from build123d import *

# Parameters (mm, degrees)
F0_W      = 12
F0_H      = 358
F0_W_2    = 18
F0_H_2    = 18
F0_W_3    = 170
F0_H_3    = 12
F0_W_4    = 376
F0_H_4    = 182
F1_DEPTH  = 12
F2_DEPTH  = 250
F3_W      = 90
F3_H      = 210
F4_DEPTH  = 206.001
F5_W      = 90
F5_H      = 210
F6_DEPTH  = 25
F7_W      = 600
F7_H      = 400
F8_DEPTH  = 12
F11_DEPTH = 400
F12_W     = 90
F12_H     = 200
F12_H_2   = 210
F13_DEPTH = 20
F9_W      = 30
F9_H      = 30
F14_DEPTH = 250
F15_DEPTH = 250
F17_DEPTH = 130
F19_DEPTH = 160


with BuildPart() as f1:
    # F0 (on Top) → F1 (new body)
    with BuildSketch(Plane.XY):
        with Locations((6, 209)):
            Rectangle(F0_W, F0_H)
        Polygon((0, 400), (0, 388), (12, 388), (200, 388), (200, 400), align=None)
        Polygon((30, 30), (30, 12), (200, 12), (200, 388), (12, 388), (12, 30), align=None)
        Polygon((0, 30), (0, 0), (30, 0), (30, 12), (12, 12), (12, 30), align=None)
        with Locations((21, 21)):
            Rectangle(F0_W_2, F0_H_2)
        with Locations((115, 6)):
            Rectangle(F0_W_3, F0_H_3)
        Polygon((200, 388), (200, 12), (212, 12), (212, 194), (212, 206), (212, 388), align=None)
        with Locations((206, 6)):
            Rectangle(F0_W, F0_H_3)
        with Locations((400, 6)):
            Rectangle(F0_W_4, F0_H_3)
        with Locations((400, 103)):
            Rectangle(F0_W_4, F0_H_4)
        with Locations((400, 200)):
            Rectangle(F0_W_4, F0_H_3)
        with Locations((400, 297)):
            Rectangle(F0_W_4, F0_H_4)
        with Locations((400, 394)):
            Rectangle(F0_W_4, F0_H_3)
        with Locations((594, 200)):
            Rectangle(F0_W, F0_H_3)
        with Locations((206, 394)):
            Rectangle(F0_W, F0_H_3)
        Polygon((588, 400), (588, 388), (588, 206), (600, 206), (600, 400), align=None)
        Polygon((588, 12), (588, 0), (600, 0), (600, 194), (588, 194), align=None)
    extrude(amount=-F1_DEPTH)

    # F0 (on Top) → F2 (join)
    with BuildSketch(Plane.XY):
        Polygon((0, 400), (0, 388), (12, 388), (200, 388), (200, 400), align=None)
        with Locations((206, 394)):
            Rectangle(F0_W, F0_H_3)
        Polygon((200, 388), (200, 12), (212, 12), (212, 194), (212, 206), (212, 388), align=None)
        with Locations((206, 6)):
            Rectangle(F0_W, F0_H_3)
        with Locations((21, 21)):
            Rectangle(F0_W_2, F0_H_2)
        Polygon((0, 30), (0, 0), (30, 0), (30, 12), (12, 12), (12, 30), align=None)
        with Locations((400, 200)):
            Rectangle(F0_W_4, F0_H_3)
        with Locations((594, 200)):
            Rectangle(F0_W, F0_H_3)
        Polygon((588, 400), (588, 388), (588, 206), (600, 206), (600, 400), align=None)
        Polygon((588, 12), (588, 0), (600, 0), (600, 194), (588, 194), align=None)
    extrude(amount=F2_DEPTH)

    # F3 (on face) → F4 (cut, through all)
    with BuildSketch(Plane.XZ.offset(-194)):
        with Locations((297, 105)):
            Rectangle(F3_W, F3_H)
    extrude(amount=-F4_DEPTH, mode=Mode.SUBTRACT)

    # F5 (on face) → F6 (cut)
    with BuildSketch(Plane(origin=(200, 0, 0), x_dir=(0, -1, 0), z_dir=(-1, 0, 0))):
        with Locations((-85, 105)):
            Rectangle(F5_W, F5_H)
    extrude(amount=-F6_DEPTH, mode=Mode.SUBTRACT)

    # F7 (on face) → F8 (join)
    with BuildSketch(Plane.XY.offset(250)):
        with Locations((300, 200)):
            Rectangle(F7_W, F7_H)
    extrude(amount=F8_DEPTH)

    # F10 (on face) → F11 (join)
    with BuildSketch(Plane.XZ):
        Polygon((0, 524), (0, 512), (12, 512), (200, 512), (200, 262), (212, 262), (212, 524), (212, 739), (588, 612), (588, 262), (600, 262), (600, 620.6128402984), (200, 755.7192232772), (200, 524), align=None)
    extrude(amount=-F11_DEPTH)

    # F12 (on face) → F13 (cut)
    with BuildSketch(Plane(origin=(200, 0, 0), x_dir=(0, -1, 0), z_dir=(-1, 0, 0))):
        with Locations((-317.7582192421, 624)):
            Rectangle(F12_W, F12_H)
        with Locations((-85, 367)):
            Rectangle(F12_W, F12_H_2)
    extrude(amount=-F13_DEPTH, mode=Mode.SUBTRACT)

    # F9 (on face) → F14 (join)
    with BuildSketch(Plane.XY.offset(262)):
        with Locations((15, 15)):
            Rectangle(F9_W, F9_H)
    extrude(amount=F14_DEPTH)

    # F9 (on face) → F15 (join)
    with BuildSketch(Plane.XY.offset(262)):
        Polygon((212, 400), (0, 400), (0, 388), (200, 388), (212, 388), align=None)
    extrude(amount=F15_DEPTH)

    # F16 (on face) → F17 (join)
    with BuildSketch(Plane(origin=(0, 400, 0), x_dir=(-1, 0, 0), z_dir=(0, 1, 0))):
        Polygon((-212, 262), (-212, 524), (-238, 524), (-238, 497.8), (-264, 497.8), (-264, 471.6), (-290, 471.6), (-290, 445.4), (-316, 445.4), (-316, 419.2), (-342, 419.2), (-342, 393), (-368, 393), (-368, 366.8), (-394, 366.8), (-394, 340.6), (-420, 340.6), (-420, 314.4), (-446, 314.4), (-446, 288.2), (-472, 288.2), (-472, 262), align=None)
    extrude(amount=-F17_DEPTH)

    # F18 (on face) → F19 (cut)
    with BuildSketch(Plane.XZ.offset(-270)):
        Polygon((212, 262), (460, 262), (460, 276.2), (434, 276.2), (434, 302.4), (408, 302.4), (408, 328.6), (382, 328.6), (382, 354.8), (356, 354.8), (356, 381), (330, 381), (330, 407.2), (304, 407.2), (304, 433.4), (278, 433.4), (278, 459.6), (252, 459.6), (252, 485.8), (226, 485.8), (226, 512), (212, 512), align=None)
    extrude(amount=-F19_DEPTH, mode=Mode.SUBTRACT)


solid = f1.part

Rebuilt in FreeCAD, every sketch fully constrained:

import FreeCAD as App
import Part
import Sketcher
from FreeCAD import Vector
Q = App.Units.Quantity


def add_polygon(sketch, points):
    """Adds a closed chain of lines whose ends are joined by coincident constraints."""
    first, n = sketch.GeometryCount, len(points)
    for a, b in zip(points, points[1:] + points[:1]):
        sketch.addGeometry(Part.LineSegment(App.Vector(*a, 0), App.Vector(*b, 0)), False)
    for i in range(n):
        sketch.addConstraint(Sketcher.Constraint("Coincident", first + i, 2, first + (i + 1) % n, 1))

doc = App.newDocument("Part")
params = doc.addObject("Spreadsheet::Sheet", "Params")
for row, (alias, value) in enumerate([
    ("sketch1_width", "600 mm"),
    ("sketch1_height", "400 mm"),
    ("pad1_length", "12 mm"),
    ("sketch2_width", "200 mm"),
    ("sketch2_width2", "12 mm"),
    ("sketch2_width3", "376 mm"),
    ("sketch2_width4", "30 mm"),
    ("sketch2_height", "388 mm"),
    ("pad2_length", "250 mm"),
    ("sketch3_width", "90 mm"),
    ("sketch3_height", "210 mm"),
    ("sketch4_width", "90 mm"),
    ("sketch4_height", "210 mm"),
    ("pocket2_length", "25 mm"),
    ("sketch5_width", "600 mm"),
    ("sketch5_height", "400 mm"),
    ("pad3_length", "12 mm"),
    ("sketch6_width", "200 mm"),
    ("sketch6_width2", "12 mm"),
    ("sketch6_height", "250 mm"),
    ("sketch6_height2", "477 mm"),
    ("sketch6_height3", "350 mm"),
    ("pad4_length", "400 mm"),
    ("sketch7_width", "90 mm"),
    ("sketch7_height", "200 mm"),
    ("sketch7_height2", "210 mm"),
    ("pocket3_length", "20 mm"),
    ("sketch8_width", "30 mm"),
    ("pad5_length", "250 mm"),
    ("sketch9_width", "212 mm"),
    ("sketch9_height", "12 mm"),
    ("pad6_length", "250 mm"),
    ("sketch10_width", "26 mm"),
    ("sketch10_height", "262 mm"),
    ("pad7_length", "130 mm"),
    ("sketch11_width", "248 mm"),
    ("sketch11_width2", "26 mm"),
    ("sketch11_height", "250 mm"),
    ("sketch11_height2", "14.2 mm"),
    ("pocket4_length", "160 mm"),
], start=1):
    params.set(f"A{row}", alias)
    params.set(f"B{row}", "=" + value)
    params.setAlias(f"B{row}", alias)

body = doc.addObject("PartDesign::Body", "Body")

# Sketch on XY plane
sketch1 = body.newObject("Sketcher::SketchObject", "Sketch")
sketch1.AttachmentSupport = (doc.getObject("XY_Plane"), [""])
sketch1.MapMode = "FlatFace"
add_polygon(sketch1, [(0, 400), (0, 0), (600, 0), (600, 400)])  # lines 0-3
sketch1.addConstraint([
    Sketcher.Constraint("Vertical", 0),
    Sketcher.Constraint("Horizontal", 1),
    Sketcher.Constraint("Vertical", 2),
    Sketcher.Constraint("Horizontal", 3),
    Sketcher.Constraint("Coincident", 0, 2, -1, 1),
    Sketcher.Constraint("DistanceX", 1, 1, 1, 2, Q("600 mm")),
    Sketcher.Constraint("DistanceY", 0, 2, 0, 1, Q("400 mm")),
])
sketch1.setExpression("Constraints[9]", "Params.sketch1_width")
sketch1.setExpression("Constraints[10]", "Params.sketch1_height")
pad1 = body.newObject("PartDesign::Pad", "Pad")
pad1.Profile = sketch1
pad1.setExpression("Length", "Params.pad1_length")
pad1.Reversed = True

# Sketch on XY plane
sketch2 = body.newObject("Sketcher::SketchObject", "Sketch001")
sketch2.AttachmentSupport = (doc.getObject("XY_Plane"), [""])
sketch2.MapMode = "FlatFace"
add_polygon(sketch2, [(0, 400), (0, 388), (200, 388), (200, 0), (212, 0), (212, 194), (588, 194), (588, 0), (600, 0), (600, 400), (588, 400), (588, 206), (212, 206), (212, 400)])  # lines 0-13
add_polygon(sketch2, [(30, 30), (0, 30), (0, 0), (30, 0)])  # lines 14-17
sketch2.addConstraint([
    Sketcher.Constraint("Vertical", 0),
    Sketcher.Constraint("Horizontal", 1),
    Sketcher.Constraint("Vertical", 2),
    Sketcher.Constraint("Horizontal", 3),
    Sketcher.Constraint("Vertical", 4),
    Sketcher.Constraint("Horizontal", 5),
    Sketcher.Constraint("Vertical", 6),
    Sketcher.Constraint("Horizontal", 7),
    Sketcher.Constraint("Vertical", 8),
    Sketcher.Constraint("Horizontal", 9),
    Sketcher.Constraint("Vertical", 10),
    Sketcher.Constraint("Horizontal", 11),
    Sketcher.Constraint("Vertical", 12),
    Sketcher.Constraint("Horizontal", 13),
    Sketcher.Constraint("Horizontal", 14),
    Sketcher.Constraint("Vertical", 15),
    Sketcher.Constraint("Horizontal", 16),
    Sketcher.Constraint("Vertical", 17),
    Sketcher.Constraint("Coincident", 15, 2, -1, 1),
    Sketcher.Constraint("PointOnObject", 0, 2, -2),
    Sketcher.Constraint("PointOnObject", 2, 2, -1),
    Sketcher.Constraint("PointOnObject", 6, 2, -1),
    Sketcher.Constraint("Horizontal", 9, 2, 12, 2),
    Sketcher.Constraint("Vertical", 6, 2, 9, 2),
    Sketcher.Constraint("Vertical", 4, 2, 11, 2),
    Sketcher.Constraint("Equal", 3, 7),
    Sketcher.Constraint("Equal", 9, 0),
    Sketcher.Constraint("Equal", 6, 10),
    Sketcher.Constraint("Equal", 16, 15),
    Sketcher.Constraint("DistanceX", 1, 1, 1, 2, Q("200 mm")),
    Sketcher.Constraint("DistanceX", 3, 1, 3, 2, Q("12 mm")),
    Sketcher.Constraint("DistanceX", 5, 1, 5, 2, Q("376 mm")),
    Sketcher.Constraint("DistanceX", 14, 2, 14, 1, Q("30 mm")),
    Sketcher.Constraint("DistanceY", 2, 2, 2, 1, Q("388 mm")),
    Sketcher.Constraint("DistanceY", 4, 1, 4, 2, Q("194 mm")),
])
sketch2.setExpression("Constraints[47]", "Params.sketch2_width")
sketch2.setExpression("Constraints[48]", "Params.sketch2_width2")
sketch2.setExpression("Constraints[49]", "Params.sketch2_width3")
sketch2.setExpression("Constraints[50]", "Params.sketch2_width4")
sketch2.setExpression("Constraints[51]", "Params.sketch2_height")
pad2 = body.newObject("PartDesign::Pad", "Pad001")
pad2.Profile = sketch2
pad2.setExpression("Length", "Params.pad2_length")

# Sketch on XZ plane
sketch3 = body.newObject("Sketcher::SketchObject", "Sketch002")
sketch3.AttachmentSupport = (doc.getObject("XZ_Plane"), [""])
sketch3.MapMode = "FlatFace"
sketch3.AttachmentOffset = App.Placement(Vector(0, 0, -194), App.Rotation())
add_polygon(sketch3, [(252, 210), (252, 0), (342, 0), (342, 210)])  # lines 0-3
sketch3.addConstraint([
    Sketcher.Constraint("Vertical", 0),
    Sketcher.Constraint("Horizontal", 1),
    Sketcher.Constraint("Vertical", 2),
    Sketcher.Constraint("Horizontal", 3),
    Sketcher.Constraint("PointOnObject", 0, 2, -1),
    Sketcher.Constraint("DistanceX", 1, 1, 1, 2, Q("90 mm")),
    Sketcher.Constraint("DistanceY", 0, 2, 0, 1, Q("210 mm")),
    Sketcher.Constraint("DistanceX", -1, 1, 0, 2, Q("252 mm")),
])
sketch3.setExpression("Constraints[9]", "Params.sketch3_width")
sketch3.setExpression("Constraints[10]", "Params.sketch3_height")
pocket1 = body.newObject("PartDesign::Pocket", "Pocket")
pocket1.Profile = sketch3
pocket1.Type = "ThroughAll"

# Sketch on YZ plane
sketch4 = body.newObject("Sketcher::SketchObject", "Sketch003")
sketch4.AttachmentSupport = (doc.getObject("YZ_Plane"), [""])
sketch4.MapMode = "FlatFace"
sketch4.AttachmentOffset = App.Placement(Vector(0, 0, 200), App.Rotation())
add_polygon(sketch4, [(130, 210), (130, 0), (40, 0), (40, 210)])  # lines 0-3
sketch4.addConstraint([
    Sketcher.Constraint("Vertical", 0),
    Sketcher.Constraint("Horizontal", 1),
    Sketcher.Constraint("Vertical", 2),
    Sketcher.Constraint("Horizontal", 3),
    Sketcher.Constraint("PointOnObject", 0, 2, -1),
    Sketcher.Constraint("DistanceX", 1, 2, 1, 1, Q("90 mm")),
    Sketcher.Constraint("DistanceY", 0, 2, 0, 1, Q("210 mm")),
    Sketcher.Constraint("DistanceX", -1, 1, 0, 2, Q("130 mm")),
])
sketch4.setExpression("Constraints[9]", "Params.sketch4_width")
sketch4.setExpression("Constraints[10]", "Params.sketch4_height")
pocket2 = body.newObject("PartDesign::Pocket", "Pocket001")
pocket2.Profile = sketch4
pocket2.setExpression("Length", "Params.pocket2_length")
pocket2.Reversed = True

# Sketch on XY plane
sketch5 = body.newObject("Sketcher::SketchObject", "Sketch004")
sketch5.AttachmentSupport = (doc.getObject("XY_Plane"), [""])
sketch5.MapMode = "FlatFace"
sketch5.AttachmentOffset = App.Placement(Vector(0, 0, 250), App.Rotation())
add_polygon(sketch5, [(0, 400), (0, 0), (600, 0), (600, 400)])  # lines 0-3
sketch5.addConstraint([
    Sketcher.Constraint("Vertical", 0),
    Sketcher.Constraint("Horizontal", 1),
    Sketcher.Constraint("Vertical", 2),
    Sketcher.Constraint("Horizontal", 3),
    Sketcher.Constraint("Coincident", 0, 2, -1, 1),
    Sketcher.Constraint("DistanceX", 1, 1, 1, 2, Q("600 mm")),
    Sketcher.Constraint("DistanceY", 0, 2, 0, 1, Q("400 mm")),
])
sketch5.setExpression("Constraints[9]", "Params.sketch5_width")
sketch5.setExpression("Constraints[10]", "Params.sketch5_height")
pad3 = body.newObject("PartDesign::Pad", "Pad002")
pad3.Profile = sketch5
pad3.setExpression("Length", "Params.pad3_length")

# Sketch on XZ plane
sketch6 = body.newObject("Sketcher::SketchObject", "Sketch005")
sketch6.AttachmentSupport = (doc.getObject("XZ_Plane"), [""])
sketch6.MapMode = "FlatFace"
add_polygon(sketch6, [(0, 524), (0, 512), (200, 512), (200, 262), (212, 262), (212, 739), (588, 612), (588, 262), (600, 262), (600, 621), (200, 756), (200, 524)])  # lines 0-11
sketch6.addConstraint([
    Sketcher.Constraint("Vertical", 0),
    Sketcher.Constraint("Horizontal", 1),
    Sketcher.Constraint("Vertical", 2),
    Sketcher.Constraint("Horizontal", 3),
    Sketcher.Constraint("Vertical", 4),
    Sketcher.Constraint("Vertical", 6),
    Sketcher.Constraint("Horizontal", 7),
    Sketcher.Constraint("Vertical", 8),
    Sketcher.Constraint("Vertical", 10),
    Sketcher.Constraint("Horizontal", 11),
    Sketcher.Constraint("PointOnObject", 0, 2, -2),
    Sketcher.Constraint("Parallel", 5, 9),
    Sketcher.Constraint("Horizontal", 3, 2, 6, 2),
    Sketcher.Constraint("Vertical", 2, 2, 9, 2),
    Sketcher.Constraint("Equal", 3, 7),
    Sketcher.Constraint("Equal", 7, 0),
    Sketcher.Constraint("DistanceX", 1, 1, 1, 2, Q("200 mm")),
    Sketcher.Constraint("DistanceX", 3, 1, 3, 2, Q("12 mm")),
    Sketcher.Constraint("DistanceY", 2, 2, 2, 1, Q("250 mm")),
    Sketcher.Constraint("DistanceY", 4, 1, 4, 2, Q("477 mm")),
    Sketcher.Constraint("DistanceY", 6, 2, 6, 1, Q("350 mm")),
    Sketcher.Constraint("DistanceY", -1, 1, 0, 2, Q("512 mm")),
    Sketcher.Constraint("DistanceX", -1, 1, 5, 2, Q("588 mm")),
    Sketcher.Constraint("DistanceY", 8, 1, 8, 2, Q("358.61284 mm")),
])
sketch6.setExpression("Constraints[28]", "Params.sketch6_width")
sketch6.setExpression("Constraints[29]", "Params.sketch6_width2")
sketch6.setExpression("Constraints[30]", "Params.sketch6_height")
sketch6.setExpression("Constraints[31]", "Params.sketch6_height2")
sketch6.setExpression("Constraints[32]", "Params.sketch6_height3")
pad4 = body.newObject("PartDesign::Pad", "Pad003")
pad4.Profile = sketch6
pad4.setExpression("Length", "Params.pad4_length")
pad4.Reversed = True

# Sketch on YZ plane
sketch7 = body.newObject("Sketcher::SketchObject", "Sketch006")
sketch7.AttachmentSupport = (doc.getObject("YZ_Plane"), [""])
sketch7.MapMode = "FlatFace"
sketch7.AttachmentOffset = App.Placement(Vector(0, 0, 200), App.Rotation())
add_polygon(sketch7, [(363, 724), (363, 524), (273, 524), (273, 724)])  # lines 0-3
add_polygon(sketch7, [(130, 472), (130, 262), (40, 262), (40, 472)])  # lines 4-7
sketch7.addConstraint([
    Sketcher.Constraint("Vertical", 0),
    Sketcher.Constraint("Horizontal", 1),
    Sketcher.Constraint("Vertical", 2),
    Sketcher.Constraint("Horizontal", 3),
    Sketcher.Constraint("Vertical", 4),
    Sketcher.Constraint("Horizontal", 5),
    Sketcher.Constraint("Vertical", 6),
    Sketcher.Constraint("Horizontal", 7),
    Sketcher.Constraint("Equal", 3, 5),
    Sketcher.Constraint("DistanceX", 1, 2, 1, 1, Q("90 mm")),
    Sketcher.Constraint("DistanceY", 0, 2, 0, 1, Q("200 mm")),
    Sketcher.Constraint("DistanceY", 4, 2, 4, 1, Q("210 mm")),
    Sketcher.Constraint("DistanceY", -1, 1, 0, 2, Q("524 mm")),
    Sketcher.Constraint("DistanceX", -1, 1, 4, 2, Q("130 mm")),
    Sketcher.Constraint("DistanceY", -1, 1, 4, 2, Q("262 mm")),
    Sketcher.Constraint("DistanceX", -1, 1, 0, 2, Q("362.758219 mm")),
])
sketch7.setExpression("Constraints[17]", "Params.sketch7_width")
sketch7.setExpression("Constraints[18]", "Params.sketch7_height")
sketch7.setExpression("Constraints[19]", "Params.sketch7_height2")
pocket3 = body.newObject("PartDesign::Pocket", "Pocket002")
pocket3.Profile = sketch7
pocket3.setExpression("Length", "Params.pocket3_length")
pocket3.Reversed = True

# Sketch on XY plane
sketch8 = body.newObject("Sketcher::SketchObject", "Sketch007")
sketch8.AttachmentSupport = (doc.getObject("XY_Plane"), [""])
sketch8.MapMode = "FlatFace"
sketch8.AttachmentOffset = App.Placement(Vector(0, 0, 262), App.Rotation())
add_polygon(sketch8, [(0, 30), (0, 0), (30, 0), (30, 30)])  # lines 0-3
sketch8.addConstraint([
    Sketcher.Constraint("Vertical", 0),
    Sketcher.Constraint("Horizontal", 1),
    Sketcher.Constraint("Vertical", 2),
    Sketcher.Constraint("Horizontal", 3),
    Sketcher.Constraint("Coincident", 0, 2, -1, 1),
    Sketcher.Constraint("Equal", 3, 0),
    Sketcher.Constraint("DistanceX", 1, 1, 1, 2, Q("30 mm")),
])
sketch8.setExpression("Constraints[10]", "Params.sketch8_width")
pad5 = body.newObject("PartDesign::Pad", "Pad004")
pad5.Profile = sketch8
pad5.setExpression("Length", "Params.pad5_length")

# Sketch on XY plane
sketch9 = body.newObject("Sketcher::SketchObject", "Sketch008")
sketch9.AttachmentSupport = (doc.getObject("XY_Plane"), [""])
sketch9.MapMode = "FlatFace"
sketch9.AttachmentOffset = App.Placement(Vector(0, 0, 262), App.Rotation())
add_polygon(sketch9, [(212, 400), (0, 400), (0, 388), (212, 388)])  # lines 0-3
sketch9.addConstraint([
    Sketcher.Constraint("Horizontal", 0),
    Sketcher.Constraint("Vertical", 1),
    Sketcher.Constraint("Horizontal", 2),
    Sketcher.Constraint("Vertical", 3),
    Sketcher.Constraint("PointOnObject", 0, 2, -2),
    Sketcher.Constraint("DistanceX", 0, 2, 0, 1, Q("212 mm")),
    Sketcher.Constraint("DistanceY", 1, 2, 1, 1, Q("12 mm")),
    Sketcher.Constraint("DistanceY", -1, 1, 0, 2, Q("400 mm")),
])
sketch9.setExpression("Constraints[9]", "Params.sketch9_width")
sketch9.setExpression("Constraints[10]", "Params.sketch9_height")
pad6 = body.newObject("PartDesign::Pad", "Pad005")
pad6.Profile = sketch9
pad6.setExpression("Length", "Params.pad6_length")

# Sketch on XZ plane
sketch10 = body.newObject("Sketcher::SketchObject", "Sketch009")
sketch10.AttachmentSupport = (doc.getObject("XZ_Plane"), [""])
sketch10.MapMode = "FlatFace"
sketch10.AttachmentOffset = App.Placement(Vector(0, 0, -400), App.Rotation())
add_polygon(sketch10, [(212, 262), (212, 524), (238, 524), (238, 498), (264, 498), (264, 472), (290, 472), (290, 445), (316, 445), (316, 419), (342, 419), (342, 393), (368, 393), (368, 367), (394, 367), (394, 341), (420, 341), (420, 314), (446, 314), (446, 288), (472, 288), (472, 262)])  # lines 0-21
sketch10.addConstraint([
    Sketcher.Constraint("Vertical", 0),
    Sketcher.Constraint("Horizontal", 1),
    Sketcher.Constraint("Vertical", 2),
    Sketcher.Constraint("Horizontal", 3),
    Sketcher.Constraint("Vertical", 4),
    Sketcher.Constraint("Horizontal", 5),
    Sketcher.Constraint("Vertical", 6),
    Sketcher.Constraint("Horizontal", 7),
    Sketcher.Constraint("Vertical", 8),
    Sketcher.Constraint("Horizontal", 9),
    Sketcher.Constraint("Vertical", 10),
    Sketcher.Constraint("Horizontal", 11),
    Sketcher.Constraint("Vertical", 12),
    Sketcher.Constraint("Horizontal", 13),
    Sketcher.Constraint("Vertical", 14),
    Sketcher.Constraint("Horizontal", 15),
    Sketcher.Constraint("Vertical", 16),
    Sketcher.Constraint("Horizontal", 17),
    Sketcher.Constraint("Vertical", 18),
    Sketcher.Constraint("Horizontal", 19),
    Sketcher.Constraint("Vertical", 20),
    Sketcher.Constraint("Horizontal", 21),
    Sketcher.Constraint("Equal", 1, 3),
    Sketcher.Constraint("Equal", 3, 5),
    Sketcher.Constraint("Equal", 5, 7),
    Sketcher.Constraint("Equal", 7, 9),
    Sketcher.Constraint("Equal", 9, 11),
    Sketcher.Constraint("Equal", 11, 13),
    Sketcher.Constraint("Equal", 13, 15),
    Sketcher.Constraint("Equal", 15, 17),
    Sketcher.Constraint("Equal", 17, 19),
    Sketcher.Constraint("Equal", 2, 4),
    Sketcher.Constraint("Equal", 4, 6),
    Sketcher.Constraint("Equal", 6, 8),
    Sketcher.Constraint("Equal", 8, 10),
    Sketcher.Constraint("Equal", 10, 12),
    Sketcher.Constraint("Equal", 12, 14),
    Sketcher.Constraint("Equal", 14, 16),
    Sketcher.Constraint("Equal", 16, 18),
    Sketcher.Constraint("Equal", 18, 20),
    Sketcher.Constraint("DistanceX", 1, 1, 1, 2, Q("26 mm")),
    Sketcher.Constraint("DistanceY", 0, 1, 0, 2, Q("262 mm")),
    Sketcher.Constraint("DistanceX", -1, 1, 0, 2, Q("212 mm")),
    Sketcher.Constraint("DistanceY", -1, 1, 0, 2, Q("524 mm")),
])
sketch10.setExpression("Constraints[62]", "Params.sketch10_width")
sketch10.setExpression("Constraints[63]", "Params.sketch10_height")
pad7 = body.newObject("PartDesign::Pad", "Pad006")
pad7.Profile = sketch10
pad7.setExpression("Length", "Params.pad7_length")

# Sketch on XZ plane
sketch11 = body.newObject("Sketcher::SketchObject", "Sketch010")
sketch11.AttachmentSupport = (doc.getObject("XZ_Plane"), [""])
sketch11.MapMode = "FlatFace"
sketch11.AttachmentOffset = App.Placement(Vector(0, 0, -270), App.Rotation())
add_polygon(sketch11, [(212, 262), (460, 262), (460, 276), (434, 276), (434, 302), (408, 302), (408, 329), (382, 329), (382, 355), (356, 355), (356, 381), (330, 381), (330, 407), (304, 407), (304, 433), (278, 433), (278, 460), (252, 460), (252, 486), (226, 486), (226, 512), (212, 512)])  # lines 0-21
sketch11.addConstraint([
    Sketcher.Constraint("Horizontal", 0),
    Sketcher.Constraint("Vertical", 1),
    Sketcher.Constraint("Horizontal", 2),
    Sketcher.Constraint("Vertical", 3),
    Sketcher.Constraint("Horizontal", 4),
    Sketcher.Constraint("Vertical", 5),
    Sketcher.Constraint("Horizontal", 6),
    Sketcher.Constraint("Vertical", 7),
    Sketcher.Constraint("Horizontal", 8),
    Sketcher.Constraint("Vertical", 9),
    Sketcher.Constraint("Horizontal", 10),
    Sketcher.Constraint("Vertical", 11),
    Sketcher.Constraint("Horizontal", 12),
    Sketcher.Constraint("Vertical", 13),
    Sketcher.Constraint("Horizontal", 14),
    Sketcher.Constraint("Vertical", 15),
    Sketcher.Constraint("Horizontal", 16),
    Sketcher.Constraint("Vertical", 17),
    Sketcher.Constraint("Horizontal", 18),
    Sketcher.Constraint("Vertical", 19),
    Sketcher.Constraint("Horizontal", 20),
    Sketcher.Constraint("Vertical", 21),
    Sketcher.Constraint("Equal", 2, 4),
    Sketcher.Constraint("Equal", 4, 6),
    Sketcher.Constraint("Equal", 6, 8),
    Sketcher.Constraint("Equal", 8, 10),
    Sketcher.Constraint("Equal", 10, 12),
    Sketcher.Constraint("Equal", 12, 14),
    Sketcher.Constraint("Equal", 14, 16),
    Sketcher.Constraint("Equal", 16, 18),
    Sketcher.Constraint("Equal", 3, 5),
    Sketcher.Constraint("Equal", 5, 7),
    Sketcher.Constraint("Equal", 7, 9),
    Sketcher.Constraint("Equal", 9, 11),
    Sketcher.Constraint("Equal", 11, 13),
    Sketcher.Constraint("Equal", 13, 15),
    Sketcher.Constraint("Equal", 15, 17),
    Sketcher.Constraint("Equal", 17, 19),
    Sketcher.Constraint("DistanceX", 0, 1, 0, 2, Q("248 mm")),
    Sketcher.Constraint("DistanceX", 2, 2, 2, 1, Q("26 mm")),
    Sketcher.Constraint("DistanceY", 21, 2, 21, 1, Q("250 mm")),
    Sketcher.Constraint("DistanceY", 1, 1, 1, 2, Q("14.2 mm")),
    Sketcher.Constraint("DistanceX", -1, 1, 0, 2, Q("460 mm")),
    Sketcher.Constraint("DistanceY", -1, 1, 0, 2, Q("262 mm")),
])
sketch11.setExpression("Constraints[60]", "Params.sketch11_width")
sketch11.setExpression("Constraints[61]", "Params.sketch11_width2")
sketch11.setExpression("Constraints[62]", "Params.sketch11_height")
sketch11.setExpression("Constraints[63]", "Params.sketch11_height2")
pocket4 = body.newObject("PartDesign::Pocket", "Pocket003")
pocket4.Profile = sketch11
pocket4.setExpression("Length", "Params.pocket4_length")

doc.recompute()
